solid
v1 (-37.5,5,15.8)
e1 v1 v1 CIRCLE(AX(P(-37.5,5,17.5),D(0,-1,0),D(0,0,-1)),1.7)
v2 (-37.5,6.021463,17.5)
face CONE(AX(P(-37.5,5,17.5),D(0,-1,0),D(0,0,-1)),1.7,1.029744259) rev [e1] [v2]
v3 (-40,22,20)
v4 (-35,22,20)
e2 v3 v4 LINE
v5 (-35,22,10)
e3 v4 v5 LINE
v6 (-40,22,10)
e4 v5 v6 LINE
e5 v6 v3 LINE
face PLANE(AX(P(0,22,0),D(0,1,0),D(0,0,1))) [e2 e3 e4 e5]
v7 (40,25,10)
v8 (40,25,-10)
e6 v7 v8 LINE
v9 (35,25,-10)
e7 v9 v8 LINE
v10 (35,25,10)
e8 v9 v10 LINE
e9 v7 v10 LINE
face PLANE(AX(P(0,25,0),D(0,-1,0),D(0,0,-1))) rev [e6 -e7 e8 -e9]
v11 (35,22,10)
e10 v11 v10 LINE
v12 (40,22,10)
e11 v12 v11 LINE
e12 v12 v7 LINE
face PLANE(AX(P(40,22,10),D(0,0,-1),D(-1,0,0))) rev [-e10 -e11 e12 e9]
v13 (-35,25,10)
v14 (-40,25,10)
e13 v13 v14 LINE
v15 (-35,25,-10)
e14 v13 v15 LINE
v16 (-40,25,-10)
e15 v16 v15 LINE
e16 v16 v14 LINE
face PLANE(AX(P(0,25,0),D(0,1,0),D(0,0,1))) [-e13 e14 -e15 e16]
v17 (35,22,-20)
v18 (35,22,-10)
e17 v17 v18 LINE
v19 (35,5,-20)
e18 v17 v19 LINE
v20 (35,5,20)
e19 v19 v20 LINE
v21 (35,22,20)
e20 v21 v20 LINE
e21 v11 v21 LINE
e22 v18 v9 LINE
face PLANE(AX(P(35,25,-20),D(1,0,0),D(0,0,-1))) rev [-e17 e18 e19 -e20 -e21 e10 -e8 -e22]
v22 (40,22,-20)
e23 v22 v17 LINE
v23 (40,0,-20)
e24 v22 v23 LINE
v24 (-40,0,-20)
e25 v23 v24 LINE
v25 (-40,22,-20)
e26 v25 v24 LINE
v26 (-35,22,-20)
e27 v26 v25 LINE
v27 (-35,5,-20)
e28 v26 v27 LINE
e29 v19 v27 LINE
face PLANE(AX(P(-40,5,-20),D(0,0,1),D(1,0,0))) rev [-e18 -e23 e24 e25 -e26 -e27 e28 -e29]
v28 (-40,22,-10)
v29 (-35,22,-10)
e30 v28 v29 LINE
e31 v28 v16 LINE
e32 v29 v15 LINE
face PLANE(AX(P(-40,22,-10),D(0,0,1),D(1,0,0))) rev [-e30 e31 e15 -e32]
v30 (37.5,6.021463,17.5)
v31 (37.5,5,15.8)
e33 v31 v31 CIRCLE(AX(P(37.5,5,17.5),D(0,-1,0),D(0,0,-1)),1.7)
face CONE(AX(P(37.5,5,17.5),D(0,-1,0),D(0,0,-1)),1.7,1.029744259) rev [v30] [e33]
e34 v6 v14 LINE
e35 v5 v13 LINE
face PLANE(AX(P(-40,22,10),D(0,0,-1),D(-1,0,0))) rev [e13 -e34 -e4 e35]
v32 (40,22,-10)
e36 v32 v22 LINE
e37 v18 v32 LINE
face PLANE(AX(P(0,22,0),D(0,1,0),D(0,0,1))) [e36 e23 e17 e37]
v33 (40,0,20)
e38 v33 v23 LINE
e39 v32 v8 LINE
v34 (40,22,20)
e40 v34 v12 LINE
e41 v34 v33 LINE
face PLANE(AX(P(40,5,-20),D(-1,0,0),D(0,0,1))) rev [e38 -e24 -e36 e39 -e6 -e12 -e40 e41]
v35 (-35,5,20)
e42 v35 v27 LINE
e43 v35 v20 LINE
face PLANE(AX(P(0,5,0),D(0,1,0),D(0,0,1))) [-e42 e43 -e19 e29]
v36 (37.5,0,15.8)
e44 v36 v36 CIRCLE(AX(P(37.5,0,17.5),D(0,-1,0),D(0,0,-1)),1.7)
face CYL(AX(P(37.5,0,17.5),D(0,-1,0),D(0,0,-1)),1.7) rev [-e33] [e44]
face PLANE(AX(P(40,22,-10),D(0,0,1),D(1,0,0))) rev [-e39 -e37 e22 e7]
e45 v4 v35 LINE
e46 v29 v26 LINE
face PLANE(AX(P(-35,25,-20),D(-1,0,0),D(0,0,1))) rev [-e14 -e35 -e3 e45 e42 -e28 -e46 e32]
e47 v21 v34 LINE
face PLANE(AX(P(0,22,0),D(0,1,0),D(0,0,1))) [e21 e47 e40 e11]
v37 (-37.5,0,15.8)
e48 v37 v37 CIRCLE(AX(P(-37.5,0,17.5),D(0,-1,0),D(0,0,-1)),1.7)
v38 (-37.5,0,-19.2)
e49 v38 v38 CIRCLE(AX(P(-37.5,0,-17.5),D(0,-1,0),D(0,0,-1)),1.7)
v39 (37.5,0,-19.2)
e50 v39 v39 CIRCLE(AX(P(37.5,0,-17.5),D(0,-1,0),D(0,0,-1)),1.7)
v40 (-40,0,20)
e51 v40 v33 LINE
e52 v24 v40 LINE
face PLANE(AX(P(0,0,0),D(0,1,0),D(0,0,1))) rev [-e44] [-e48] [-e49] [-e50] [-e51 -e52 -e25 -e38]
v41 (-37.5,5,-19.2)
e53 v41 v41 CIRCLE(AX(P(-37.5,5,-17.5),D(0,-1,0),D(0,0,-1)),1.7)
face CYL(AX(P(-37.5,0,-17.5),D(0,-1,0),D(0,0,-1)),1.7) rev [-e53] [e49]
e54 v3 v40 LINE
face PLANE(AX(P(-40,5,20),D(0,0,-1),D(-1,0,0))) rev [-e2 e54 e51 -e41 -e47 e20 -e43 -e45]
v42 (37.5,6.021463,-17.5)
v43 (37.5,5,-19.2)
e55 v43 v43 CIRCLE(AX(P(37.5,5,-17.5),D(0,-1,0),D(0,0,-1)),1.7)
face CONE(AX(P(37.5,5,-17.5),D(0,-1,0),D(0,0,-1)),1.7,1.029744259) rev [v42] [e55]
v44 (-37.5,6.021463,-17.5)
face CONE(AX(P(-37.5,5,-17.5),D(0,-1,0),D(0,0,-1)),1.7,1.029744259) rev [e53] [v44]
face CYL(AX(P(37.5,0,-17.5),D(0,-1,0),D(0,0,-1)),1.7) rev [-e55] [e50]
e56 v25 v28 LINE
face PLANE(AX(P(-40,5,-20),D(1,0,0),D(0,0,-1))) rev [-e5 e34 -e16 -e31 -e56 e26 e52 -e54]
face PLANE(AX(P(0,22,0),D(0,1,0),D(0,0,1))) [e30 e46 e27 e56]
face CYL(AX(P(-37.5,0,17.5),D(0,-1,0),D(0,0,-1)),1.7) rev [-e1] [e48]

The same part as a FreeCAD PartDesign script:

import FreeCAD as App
import Part
import Sketcher
from FreeCAD import Vector
Q = App.Units.Quantity

doc = App.newDocument("Part")
params = doc.addObject("Spreadsheet::Sheet", "Params")
for row, (alias, value) in enumerate([
    ("sketch1_width", "80 mm"),
    ("sketch1_height", "40 mm"),
    ("pad1_length", "5 mm"),
    ("sketch2_width", "5 mm"),
    ("sketch2_height", "40 mm"),
    ("pad2_length", "20 mm"),
    ("sketch3_width", "5 mm"),
    ("sketch3_height", "40 mm"),
    ("pad3_length", "20 mm"),
    ("sketch4_width", "5 mm"),
    ("sketch4_height", "10 mm"),
    ("pocket1_length", "3 mm"),
    ("sketch5_width", "5 mm"),
    ("sketch5_height", "10 mm"),
    ("pocket2_length", "3 mm"),
    ("sketch6_diameter", "3.4 mm"),
    ("hole_diameter", "3.4 mm"),
    ("hole_depth", "5 mm"),
], start=1):
    params.set(f"A{row}", alias)
    params.set(f"B{row}", "=" + value)
    params.setAlias(f"B{row}", alias)

body = doc.addObject("PartDesign::Body", "Body")

sketch1 = doc.addObject("Sketcher::SketchObject", "Sketch")
body.addObject(sketch1)
sketch1.AttachmentSupport = (doc.XZ_Plane, [""])
sketch1.MapMode = "FlatFace"
sketch1.addGeometry([
    Part.LineSegment(Vector(-40, -20, 0), Vector(-40, 20, 0)),
    Part.LineSegment(Vector(-40, 20, 0), Vector(40, 20, 0)),
    Part.LineSegment(Vector(40, 20, 0), Vector(40, -20, 0)),
    Part.LineSegment(Vector(40, -20, 0), Vector(-40, -20, 0)),
], False)
sketch1.addConstraint([
    Sketcher.Constraint("Coincident", 0, 2, 1, 1),
    Sketcher.Constraint("Coincident", 1, 2, 2, 1),
    Sketcher.Constraint("Coincident", 2, 2, 3, 1),
    Sketcher.Constraint("Coincident", 3, 2, 0, 1),
    Sketcher.Constraint("Vertical", 0),
    Sketcher.Constraint("Horizontal", 1),
    Sketcher.Constraint("Vertical", 2),
    Sketcher.Constraint("Horizontal", 3),
    Sketcher.Constraint("Symmetric", 0, 2, 2, 2, -1, 1),
    Sketcher.Constraint("DistanceX", 1, 1, 1, 2, Q("80 mm")),
    Sketcher.Constraint("DistanceY", 0, 1, 0, 2, Q("40 mm")),
])
sketch1.setExpression("Constraints[9]", "Params.sketch1_width")
sketch1.setExpression("Constraints[10]", "Params.sketch1_height")
pad1 = doc.addObject("PartDesign::Pad", "Pad")
body.addObject(pad1)
pad1.Profile = sketch1
pad1.setExpression("Length", "Params.pad1_length")
pad1.Reversed = True

sketch2 = doc.addObject("Sketcher::SketchObject", "Sketch001")
body.addObject(sketch2)
sketch2.AttachmentSupport = (doc.XZ_Plane, [""])
sketch2.MapMode = "FlatFace"
sketch2.AttachmentOffset = App.Placement(Vector(0, 0, -5), App.Rotation())
sketch2.addGeometry([
    Part.LineSegment(Vector(-40, -20, 0), Vector(-40, 20, 0)),
    Part.LineSegment(Vector(-40, 20, 0), Vector(-35, 20, 0)),
    Part.LineSegment(Vector(-35, 20, 0), Vector(-35, -20, 0)),
    Part.LineSegment(Vector(-35, -20, 0), Vector(-40, -20, 0)),
], False)
sketch2.addConstraint([
    Sketcher.Constraint("Coincident", 0, 2, 1, 1),
    Sketcher.Constraint("Coincident", 1, 2, 2, 1),
    Sketcher.Constraint("Coincident", 2, 2, 3, 1),
    Sketcher.Constraint("Coincident", 3, 2, 0, 1),
    Sketcher.Constraint("Vertical", 0),
    Sketcher.Constraint("Horizontal", 1),
    Sketcher.Constraint("Vertical", 2),
    Sketcher.Constraint("Horizontal", 3),
    Sketcher.Constraint("DistanceX", 1, 1, 1, 2, Q("5 mm")),
    Sketcher.Constraint("DistanceY", 0, 1, 0, 2, Q("40 mm")),
    Sketcher.Constraint("DistanceX", 0, 2, -1, 1, Q("40 mm")),
    Sketcher.Constraint("DistanceY", -1, 1, 0, 2, Q("20 mm")),
])
sketch2.setExpression("Constraints[8]", "Params.sketch2_width")
sketch2.setExpression("Constraints[9]", "Params.sketch2_height")
pad2 = doc.addObject("PartDesign::Pad", "Pad001")
body.addObject(pad2)
pad2.Profile = sketch2
pad2.setExpression("Length", "Params.pad2_length")
pad2.Reversed = True

sketch3 = doc.addObject("Sketcher::SketchObject", "Sketch002")
body.addObject(sketch3)
sketch3.AttachmentSupport = (doc.XZ_Plane, [""])
sketch3.MapMode = "FlatFace"
sketch3.AttachmentOffset = App.Placement(Vector(0, 0, -5), App.Rotation())
sketch3.addGeometry([
    Part.LineSegment(Vector(35, -20, 0), Vector(35, 20, 0)),
    Part.LineSegment(Vector(35, 20, 0), Vector(40, 20, 0)),
    Part.LineSegment(Vector(40, 20, 0), Vector(40, -20, 0)),
    Part.LineSegment(Vector(40, -20, 0), Vector(35, -20, 0)),
], False)
sketch3.addConstraint([
    Sketcher.Constraint("Coincident", 0, 2, 1, 1),
    Sketcher.Constraint("Coincident", 1, 2, 2, 1),
    Sketcher.Constraint("Coincident", 2, 2, 3, 1),
    Sketcher.Constraint("Coincident", 3, 2, 0, 1),
    Sketcher.Constraint("Vertical", 0),
    Sketcher.Constraint("Horizontal", 1),
    Sketcher.Constraint("Vertical", 2),
    Sketcher.Constraint("Horizontal", 3),
    Sketcher.Constraint("DistanceX", 1, 1, 1, 2, Q("5 mm")),
    Sketcher.Constraint("DistanceY", 0, 1, 0, 2, Q("40 mm")),
    Sketcher.Constraint("DistanceX", -1, 1, 0, 2, Q("35 mm")),
    Sketcher.Constraint("DistanceY", -1, 1, 0, 2, Q("20 mm")),
])
sketch3.setExpression("Constraints[8]", "Params.sketch3_width")
sketch3.setExpression("Constraints[9]", "Params.sketch3_height")
pad3 = doc.addObject("PartDesign::Pad", "Pad002")
body.addObject(pad3)
pad3.Profile = sketch3
pad3.setExpression("Length", "Params.pad3_length")
pad3.Reversed = True

sketch4 = doc.addObject("Sketcher::SketchObject", "Sketch003")
body.addObject(sketch4)
sketch4.AttachmentSupport = (doc.XZ_Plane, [""])
sketch4.MapMode = "FlatFace"
sketch4.AttachmentOffset = App.Placement(Vector(0, 0, -25), App.Rotation())
sketch4.addGeometry([
    Part.LineSegment(Vector(-40, -20, 0), Vector(-40, -10, 0)),
    Part.LineSegment(Vector(-40, -10, 0), Vector(-35, -10, 0)),
    Part.LineSegment(Vector(-35, -10, 0), Vector(-35, -20, 0)),
    Part.LineSegment(Vector(-35, -20, 0), Vector(-40, -20, 0)),
    Part.LineSegment(Vector(-40, 10, 0), Vector(-40, 20, 0)),
    Part.LineSegment(Vector(-40, 20, 0), Vector(-35, 20, 0)),
    Part.LineSegment(Vector(-35, 20, 0), Vector(-35, 10, 0)),
    Part.LineSegment(Vector(-35, 10, 0), Vector(-40, 10, 0)),
], False)
sketch4.addConstraint([
    Sketcher.Constraint("Coincident", 0, 2, 1, 1),
    Sketcher.Constraint("Coincident", 1, 2, 2, 1),
    Sketcher.Constraint("Coincident", 2, 2, 3, 1),
    Sketcher.Constraint("Coincident", 3, 2, 0, 1),
    Sketcher.Constraint("Coincident", 4, 2, 5, 1),
    Sketcher.Constraint("Coincident", 5, 2, 6, 1),
    Sketcher.Constraint("Coincident", 6, 2, 7, 1),
    Sketcher.Constraint("Coincident", 7, 2, 4, 1),
    Sketcher.Constraint("Vertical", 0),
    Sketcher.Constraint("Horizontal", 1),
    Sketcher.Constraint("Vertical", 2),
    Sketcher.Constraint("Horizontal", 3),
    Sketcher.Constraint("Vertical", 4),
    Sketcher.Constraint("Horizontal", 5),
    Sketcher.Constraint("Vertical", 6),
    Sketcher.Constraint("Horizontal", 7),
    Sketcher.Constraint("Symmetric", 3, 2, 4, 2, -1),
    Sketcher.Constraint("Symmetric", 1, 2, 6, 2, -1),
    Sketcher.Constraint("DistanceX", 1, 1, 1, 2, Q("5 mm")),
    Sketcher.Constraint("DistanceY", 0, 1, 0, 2, Q("10 mm")),
    Sketcher.Constraint("DistanceX", 0, 2, -1, 1, Q("40 mm")),
    Sketcher.Constraint("DistanceY", 0, 2, -1, 1, Q("10 mm")),
])
sketch4.setExpression("Constraints[18]", "Params.sketch4_width")
sketch4.setExpression("Constraints[19]", "Params.sketch4_height")
pocket1 = doc.addObject("PartDesign::Pocket", "Pocket")
body.addObject(pocket1)
pocket1.Profile = sketch4
pocket1.setExpression("Length", "Params.pocket1_length")
pocket1.Reversed = True

sketch5 = doc.addObject("Sketcher::SketchObject", "Sketch004")
body.addObject(sketch5)
sketch5.AttachmentSupport = (doc.XZ_Plane, [""])
sketch5.MapMode = "FlatFace"
sketch5.AttachmentOffset = App.Placement(Vector(0, 0, -25), App.Rotation())
sketch5.addGeometry([
    Part.LineSegment(Vector(35, 10, 0), Vector(35, 20, 0)),
    Part.LineSegment(Vector(35, 20, 0), Vector(40, 20, 0)),
    Part.LineSegment(Vector(40, 20, 0), Vector(40, 10, 0)),
    Part.LineSegment(Vector(40, 10, 0), Vector(35, 10, 0)),
    Part.LineSegment(Vector(35, -20, 0), Vector(35, -10, 0)),
    Part.LineSegment(Vector(35, -10, 0), Vector(40, -10, 0)),
    Part.LineSegment(Vector(40, -10, 0), Vector(40, -20, 0)),
    Part.LineSegment(Vector(40, -20, 0), Vector(35, -20, 0)),
], False)
sketch5.addConstraint([
    Sketcher.Constraint("Coincident", 0, 2, 1, 1),
    Sketcher.Constraint("Coincident", 1, 2, 2, 1),
    Sketcher.Constraint("Coincident", 2, 2, 3, 1),
    Sketcher.Constraint("Coincident", 3, 2, 0, 1),
    Sketcher.Constraint("Coincident", 4, 2, 5, 1),
    Sketcher.Constraint("Coincident", 5, 2, 6, 1),
    Sketcher.Constraint("Coincident", 6, 2, 7, 1),
    Sketcher.Constraint("Coincident", 7, 2, 4, 1),
    Sketcher.Constraint("Vertical", 0),
    Sketcher.Constraint("Horizontal", 1),
    Sketcher.Constraint("Vertical", 2),
    Sketcher.Constraint("Horizontal", 3),
    Sketcher.Constraint("Vertical", 4),
    Sketcher.Constraint("Horizontal", 5),
    Sketcher.Constraint("Vertical", 6),
    Sketcher.Constraint("Horizontal", 7),
    Sketcher.Constraint("Symmetric", 3, 2, 4, 2, -1),
    Sketcher.Constraint("Symmetric", 1, 2, 6, 2, -1),
    Sketcher.Constraint("DistanceX", 1, 1, 1, 2, Q("5 mm")),
    Sketcher.Constraint("DistanceY", 0, 1, 0, 2, Q("10 mm")),
    Sketcher.Constraint("DistanceX", -1, 1, 0, 2, Q("35 mm")),
    Sketcher.Constraint("DistanceY", -1, 1, 0, 2, Q("20 mm")),
])
sketch5.setExpression("Constraints[18]", "Params.sketch5_width")
sketch5.setExpression("Constraints[19]", "Params.sketch5_height")
pocket2 = doc.addObject("PartDesign::Pocket", "Pocket001")
body.addObject(pocket2)
pocket2.Profile = sketch5
pocket2.setExpression("Length", "Params.pocket2_length")
pocket2.Reversed = True

sketch6 = doc.addObject("Sketcher::SketchObject", "Sketch005")
body.addObject(sketch6)
sketch6.AttachmentSupport = (doc.XZ_Plane, [""])
sketch6.MapMode = "FlatFace"
sketch6.addGeometry([
    Part.Circle(Vector(-37.5, 17.5, 0), Vector(0, 0, 1), 1.7),
    Part.Circle(Vector(-37.5, -17.5, 0), Vector(0, 0, 1), 1.7),
    Part.Circle(Vector(37.5, -17.5, 0), Vector(0, 0, 1), 1.7),
    Part.Circle(Vector(37.5, 17.5, 0), Vector(0, 0, 1), 1.7),
], False)
sketch6.addConstraint([
    Sketcher.Constraint("Equal", 0, 1),
    Sketcher.Constraint("Equal", 1, 2),
    Sketcher.Constraint("Equal", 2, 3),
    Sketcher.Constraint("Symmetric", 0, 3, 2, 3, -1, 1),
    Sketcher.Constraint("Symmetric", 1, 3, 3, 3, -1, 1),
    Sketcher.Constraint("Symmetric", 1, 3, 2, 3, -2),
    Sketcher.Constraint("Diameter", 0, Q("3.4 mm")),
    Sketcher.Constraint("DistanceY", 1, 3, 0, 3, Q("35 mm")),
    Sketcher.Constraint("DistanceX", 1, 3, 2, 3, Q("75 mm")),
])
sketch6.setExpression("Constraints[6]", "Params.sketch6_diameter")
doc.recompute()
hole = doc.addObject("PartDesign::Hole", "Hole")
body.addObject(hole)
hole.Profile = sketch6
hole.ThreadType = "None"
hole.setExpression("Diameter", "Params.hole_diameter")
hole.DepthType = "Dimension"
hole.setExpression("Depth", "Params.hole_depth")
hole.DrillPoint = "Angled"
hole.DrillPointAngle = 118

doc.recompute()
